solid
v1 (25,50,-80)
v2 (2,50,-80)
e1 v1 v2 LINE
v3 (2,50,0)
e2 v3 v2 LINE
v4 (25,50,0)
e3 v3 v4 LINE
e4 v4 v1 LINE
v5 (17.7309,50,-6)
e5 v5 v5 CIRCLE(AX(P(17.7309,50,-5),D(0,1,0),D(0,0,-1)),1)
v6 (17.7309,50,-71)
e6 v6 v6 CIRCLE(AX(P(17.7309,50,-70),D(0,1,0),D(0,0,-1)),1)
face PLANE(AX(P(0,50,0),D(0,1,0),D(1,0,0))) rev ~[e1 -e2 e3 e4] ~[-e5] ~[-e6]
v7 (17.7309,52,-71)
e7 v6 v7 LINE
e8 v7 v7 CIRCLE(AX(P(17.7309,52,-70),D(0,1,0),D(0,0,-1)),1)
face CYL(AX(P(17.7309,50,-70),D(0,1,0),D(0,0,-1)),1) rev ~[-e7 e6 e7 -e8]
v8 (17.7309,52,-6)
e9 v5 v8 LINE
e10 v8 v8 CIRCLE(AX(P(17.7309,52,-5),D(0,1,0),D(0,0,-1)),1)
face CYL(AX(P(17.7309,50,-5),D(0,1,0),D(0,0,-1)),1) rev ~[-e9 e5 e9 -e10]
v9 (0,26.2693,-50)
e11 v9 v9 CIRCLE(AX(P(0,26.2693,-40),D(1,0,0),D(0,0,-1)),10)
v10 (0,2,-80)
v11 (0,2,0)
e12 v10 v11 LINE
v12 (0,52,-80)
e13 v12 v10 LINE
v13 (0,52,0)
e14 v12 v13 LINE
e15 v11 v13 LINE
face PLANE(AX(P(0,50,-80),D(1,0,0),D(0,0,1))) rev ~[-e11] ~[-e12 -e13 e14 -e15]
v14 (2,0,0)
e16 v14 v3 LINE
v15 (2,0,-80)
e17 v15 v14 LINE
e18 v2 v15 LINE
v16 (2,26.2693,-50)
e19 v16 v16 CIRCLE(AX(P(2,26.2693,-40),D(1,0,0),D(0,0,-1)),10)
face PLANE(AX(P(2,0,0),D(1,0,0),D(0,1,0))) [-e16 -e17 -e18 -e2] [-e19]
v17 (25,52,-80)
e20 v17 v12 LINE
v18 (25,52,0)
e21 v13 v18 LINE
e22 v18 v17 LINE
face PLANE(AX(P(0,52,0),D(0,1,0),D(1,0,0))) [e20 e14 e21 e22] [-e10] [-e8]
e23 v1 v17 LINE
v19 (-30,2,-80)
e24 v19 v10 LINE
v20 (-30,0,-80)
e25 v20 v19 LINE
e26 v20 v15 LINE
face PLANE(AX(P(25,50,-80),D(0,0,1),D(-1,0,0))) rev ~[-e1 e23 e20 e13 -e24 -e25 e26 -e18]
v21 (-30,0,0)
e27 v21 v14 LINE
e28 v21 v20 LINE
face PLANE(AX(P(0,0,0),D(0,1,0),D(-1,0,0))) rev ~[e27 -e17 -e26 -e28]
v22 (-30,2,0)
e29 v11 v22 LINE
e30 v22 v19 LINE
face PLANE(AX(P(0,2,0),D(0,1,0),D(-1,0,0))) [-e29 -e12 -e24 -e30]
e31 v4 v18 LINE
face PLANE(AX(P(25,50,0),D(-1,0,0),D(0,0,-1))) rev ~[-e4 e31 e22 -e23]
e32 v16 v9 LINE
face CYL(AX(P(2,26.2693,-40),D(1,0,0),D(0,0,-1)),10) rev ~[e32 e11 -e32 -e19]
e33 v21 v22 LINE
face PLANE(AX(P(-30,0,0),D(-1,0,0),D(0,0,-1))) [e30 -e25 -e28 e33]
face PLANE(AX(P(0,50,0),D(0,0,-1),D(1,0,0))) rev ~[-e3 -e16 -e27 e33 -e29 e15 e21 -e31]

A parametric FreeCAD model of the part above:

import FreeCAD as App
import Part
import Sketcher

V = App.Vector
Q = App.Units.Quantity

doc = App.newDocument("Part")
body = doc.addObject("PartDesign::Body", "Body")

# Sketch on XZ plane
sketch1 = body.newObject("Sketcher::SketchObject", "Sketch")
sketch1.AttachmentSupport = (doc.getObject("XZ_Plane"), [""])
sketch1.MapMode = "FlatFace"
sketch1.addGeometry([
    Part.LineSegment(V(-30, 0, 0), V(0, 0, 0)),
    Part.LineSegment(V(0, 0, 0), V(0, -80, 0)),
    Part.LineSegment(V(0, -80, 0), V(-30, -80, 0)),
    Part.LineSegment(V(-30, -80, 0), V(-30, 0, 0)),
], False)
sketch1.addConstraint([
    Sketcher.Constraint("Coincident", 0, 2, 1, 1),
    Sketcher.Constraint("Coincident", 1, 2, 2, 1),
    Sketcher.Constraint("Coincident", 2, 2, 3, 1),
    Sketcher.Constraint("Coincident", 3, 2, 0, 1),
    Sketcher.Constraint("Horizontal", 0),
    Sketcher.Constraint("Vertical", 1),
    Sketcher.Constraint("Horizontal", 2),
    Sketcher.Constraint("Vertical", 3),
    Sketcher.Constraint("Coincident", 0, 2, -1, 1),
    Sketcher.Constraint("DistanceX", 0, 1, 0, 2, Q("30 mm")),
    Sketcher.Constraint("DistanceY", 1, 2, 1, 1, Q("80 mm")),
])
pad1 = body.newObject("PartDesign::Pad", "Pad")
pad1.Profile = sketch1
pad1.Length = 2
pad1.Reversed = True

# Sketch on YZ plane
sketch2 = body.newObject("Sketcher::SketchObject", "Sketch001")
sketch2.AttachmentSupport = (doc.getObject("YZ_Plane"), [""])
sketch2.MapMode = "FlatFace"
sketch2.addGeometry([
    Part.LineSegment(V(50, 0, 0), V(0, 0, 0)),
    Part.LineSegment(V(0, 0, 0), V(0, -80, 0)),
    Part.LineSegment(V(0, -80, 0), V(50, -80, 0)),
    Part.LineSegment(V(50, -80, 0), V(50, 0, 0)),
], False)
sketch2.addConstraint([
    Sketcher.Constraint("Coincident", 0, 2, 1, 1),
    Sketcher.Constraint("Coincident", 1, 2, 2, 1),
    Sketcher.Constraint("Coincident", 2, 2, 3, 1),
    Sketcher.Constraint("Coincident", 3, 2, 0, 1),
    Sketcher.Constraint("Horizontal", 0),
    Sketcher.Constraint("Vertical", 1),
    Sketcher.Constraint("Horizontal", 2),
    Sketcher.Constraint("Vertical", 3),
    Sketcher.Constraint("Coincident", 0, 2, -1, 1),
    Sketcher.Constraint("DistanceX", 0, 2, 0, 1, Q("50 mm")),
    Sketcher.Constraint("DistanceY", 1, 2, 1, 1, Q("80 mm")),
])
pad2 = body.newObject("PartDesign::Pad", "Pad001")
pad2.Profile = sketch2
pad2.Length = 2

# Sketch on XZ plane
sketch3 = body.newObject("Sketcher::SketchObject", "Sketch002")
sketch3.AttachmentSupport = (doc.getObject("XZ_Plane"), [""])
sketch3.MapMode = "FlatFace"
sketch3.AttachmentOffset = App.Placement(V(0, 0, -50), App.Rotation())
sketch3.addGeometry([
    Part.LineSegment(V(0, -80, 0), V(0, 0, 0)),
    Part.LineSegment(V(0, 0, 0), V(25, 0, 0)),
    Part.LineSegment(V(25, 0, 0), V(25, -80, 0)),
    Part.LineSegment(V(25, -80, 0), V(0, -80, 0)),
], False)
sketch3.addConstraint([
    Sketcher.Constraint("Coincident", 0, 2, 1, 1),
    Sketcher.Constraint("Coincident", 1, 2, 2, 1),
    Sketcher.Constraint("Coincident", 2, 2, 3, 1),
    Sketcher.Constraint("Coincident", 3, 2, 0, 1),
    Sketcher.Constraint("Vertical", 0),
    Sketcher.Constraint("Horizontal", 1),
    Sketcher.Constraint("Vertical", 2),
    Sketcher.Constraint("Horizontal", 3),
    Sketcher.Constraint("Coincident", 0, 2, -1, 1),
    Sketcher.Constraint("DistanceX", 1, 1, 1, 2, Q("25 mm")),
    Sketcher.Constraint("DistanceY", 0, 1, 0, 2, Q("80 mm")),
])
pad3 = body.newObject("PartDesign::Pad", "Pad002")
pad3.Profile = sketch3
pad3.Length = 2
pad3.Reversed = True

# Sketch on XZ plane
sketch4 = body.newObject("Sketcher::SketchObject", "Sketch003")
sketch4.AttachmentSupport = (doc.getObject("XZ_Plane"), [""])
sketch4.MapMode = "FlatFace"
sketch4.AttachmentOffset = App.Placement(V(0, 0, -50), App.Rotation())
sketch4.addGeometry([
    Part.Circle(V(17.7309, -70, 0), V(0, 0, 1), 1),
    Part.Circle(V(17.7309, -5, 0), V(0, 0, 1), 1),
], False)
sketch4.addConstraint([
    Sketcher.Constraint("Equal", 0, 1),
    Sketcher.Constraint("Vertical", 0, 3, 1, 3),
    Sketcher.Constraint("Diameter", 0, Q("2 mm")),
    Sketcher.Constraint("DistanceY", 0, 3, -1, 1, Q("70 mm")),
    Sketcher.Constraint("DistanceY", 1, 3, -1, 1, Q("5 mm")),
    Sketcher.Constraint("DistanceX", -1, 1, 0, 3, Q("17.731 mm")),
])
doc.recompute()
hole = body.newObject("PartDesign::Hole", "Hole")
hole.Profile = sketch4
hole.ThreadType = "None"
hole.Diameter = 2
hole.DepthType = "Dimension"
hole.Depth = 25
hole.DrillPoint = "Angled"
hole.DrillPointAngle = 118

# Sketch on YZ plane
sketch5 = body.newObject("Sketcher::SketchObject", "Sketch004")
sketch5.AttachmentSupport = (doc.getObject("YZ_Plane"), [""])
sketch5.MapMode = "FlatFace"
sketch5.AttachmentOffset = App.Placement(V(0, 0, 2), App.Rotation())
sketch5.addGeometry(Part.Circle(V(26.2693, -40, 0), V(0, 0, 1), 10), False)
sketch5.addConstraint([
    Sketcher.Constraint("Diameter", 0, Q("20 mm")),
    Sketcher.Constraint("DistanceY", 0, 3, -1, 1, Q("40 mm")),
    Sketcher.Constraint("DistanceX", -1, 1, 0, 3, Q("26.2693 mm")),
])
pocket1 = body.newObject("PartDesign::Pocket", "Pocket")
pocket1.Profile = sketch5
pocket1.Length = 2

doc.recompute()
